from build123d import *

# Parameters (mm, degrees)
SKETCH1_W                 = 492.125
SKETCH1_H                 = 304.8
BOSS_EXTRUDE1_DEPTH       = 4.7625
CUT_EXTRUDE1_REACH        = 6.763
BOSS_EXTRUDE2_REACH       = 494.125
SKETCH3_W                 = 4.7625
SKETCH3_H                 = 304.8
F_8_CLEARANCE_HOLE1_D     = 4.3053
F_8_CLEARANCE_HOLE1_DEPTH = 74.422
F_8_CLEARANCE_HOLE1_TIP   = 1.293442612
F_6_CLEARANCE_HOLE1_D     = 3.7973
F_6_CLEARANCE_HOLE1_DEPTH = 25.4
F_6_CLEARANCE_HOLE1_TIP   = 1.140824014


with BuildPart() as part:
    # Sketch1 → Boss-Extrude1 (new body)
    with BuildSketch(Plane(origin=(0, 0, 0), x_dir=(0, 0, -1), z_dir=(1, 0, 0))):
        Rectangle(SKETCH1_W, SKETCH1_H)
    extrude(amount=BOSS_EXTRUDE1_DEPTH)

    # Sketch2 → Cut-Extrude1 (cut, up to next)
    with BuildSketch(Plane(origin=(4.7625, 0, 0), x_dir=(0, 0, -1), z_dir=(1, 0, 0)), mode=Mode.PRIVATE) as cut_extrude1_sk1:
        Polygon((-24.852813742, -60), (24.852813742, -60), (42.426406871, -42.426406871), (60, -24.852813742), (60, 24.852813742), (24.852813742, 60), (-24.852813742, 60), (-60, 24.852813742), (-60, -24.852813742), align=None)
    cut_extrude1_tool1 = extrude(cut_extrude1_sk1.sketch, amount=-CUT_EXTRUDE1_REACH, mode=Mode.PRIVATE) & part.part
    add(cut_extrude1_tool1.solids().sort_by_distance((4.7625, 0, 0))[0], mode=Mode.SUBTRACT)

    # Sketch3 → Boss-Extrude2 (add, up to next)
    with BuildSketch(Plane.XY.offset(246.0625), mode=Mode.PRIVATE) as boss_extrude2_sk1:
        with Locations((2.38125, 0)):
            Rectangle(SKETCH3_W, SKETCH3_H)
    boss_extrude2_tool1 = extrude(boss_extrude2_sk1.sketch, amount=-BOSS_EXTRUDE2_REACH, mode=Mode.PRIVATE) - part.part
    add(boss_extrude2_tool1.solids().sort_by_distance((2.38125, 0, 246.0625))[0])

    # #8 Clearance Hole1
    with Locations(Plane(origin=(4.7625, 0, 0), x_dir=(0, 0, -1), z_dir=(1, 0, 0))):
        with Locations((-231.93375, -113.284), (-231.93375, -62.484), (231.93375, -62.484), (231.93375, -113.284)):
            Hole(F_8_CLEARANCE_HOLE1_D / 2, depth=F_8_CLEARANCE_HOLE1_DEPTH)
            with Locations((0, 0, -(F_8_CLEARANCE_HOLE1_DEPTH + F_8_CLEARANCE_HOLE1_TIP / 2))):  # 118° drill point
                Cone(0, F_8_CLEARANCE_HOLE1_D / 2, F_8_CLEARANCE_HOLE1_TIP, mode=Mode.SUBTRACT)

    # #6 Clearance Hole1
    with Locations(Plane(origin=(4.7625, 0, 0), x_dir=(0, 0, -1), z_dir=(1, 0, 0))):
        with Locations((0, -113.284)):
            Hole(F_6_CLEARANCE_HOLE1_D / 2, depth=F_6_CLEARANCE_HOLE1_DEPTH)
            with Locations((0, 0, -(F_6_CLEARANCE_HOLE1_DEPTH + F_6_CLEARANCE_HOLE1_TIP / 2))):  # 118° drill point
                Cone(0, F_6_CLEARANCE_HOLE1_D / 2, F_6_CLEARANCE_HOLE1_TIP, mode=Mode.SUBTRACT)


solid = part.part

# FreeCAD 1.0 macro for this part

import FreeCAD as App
import Part
import Sketcher
from FreeCAD import Vector
Q = App.Units.Quantity


def add_polygon(sketch, points):
    """Adds a closed chain of lines whose ends are joined by coincident constraints."""
    first, n = sketch.GeometryCount, len(points)
    for a, b in zip(points, points[1:] + points[:1]):
        sketch.addGeometry(Part.LineSegment(App.Vector(*a, 0), App.Vector(*b, 0)), False)
    for i in range(n):
        sketch.addConstraint(Sketcher.Constraint("Coincident", first + i, 2, first + (i + 1) % n, 1))

doc = App.newDocument("Part")
body = doc.addObject("PartDesign::Body", "Body")

# Sketch on YZ plane
sketch1 = body.newObject("Sketcher::SketchObject", "Sketch")
sketch1.AttachmentSupport = (doc.getObject("YZ_Plane"), [""])
sketch1.MapMode = "FlatFace"
add_polygon(sketch1, [(152, 246), (-152, 246), (-152, -246), (152, -246)])  # lines 0-3
sketch1.addConstraint(Sketcher.Constraint("Horizontal", 0))
sketch1.addConstraint(Sketcher.Constraint("Vertical", 1))
sketch1.addConstraint(Sketcher.Constraint("Horizontal", 2))
sketch1.addConstraint(Sketcher.Constraint("Vertical", 3))
sketch1.addConstraint(Sketcher.Constraint("Symmetric", 0, 2, 2, 2, -1, 1))
sketch1.addConstraint(Sketcher.Constraint("DistanceX", 0, 2, 0, 1, Q("12 in")))
sketch1.addConstraint(Sketcher.Constraint("DistanceY", 1, 2, 1, 1, Q("19.375 in")))
pad1 = body.newObject("PartDesign::Pad", "Pad")
pad1.Profile = sketch1
pad1.Length = Q("0.1875 in")

# Sketch on YZ plane
sketch2 = body.newObject("Sketcher::SketchObject", "Sketch001")
sketch2.AttachmentSupport = (doc.getObject("YZ_Plane"), [""])
sketch2.MapMode = "FlatFace"
sketch2.AttachmentOffset = App.Placement(Vector(0, 0, 0.1875 * 25.4), App.Rotation())
add_polygon(sketch2, [(-60, 25), (-60, -25), (-25, -60), (25, -60), (60, -25), (60, 25), (25, 60), (-25, 60)])  # lines 0-7
sketch2.addConstraint(Sketcher.Constraint("Vertical", 0))
sketch2.addConstraint(Sketcher.Constraint("Horizontal", 2))
sketch2.addConstraint(Sketcher.Constraint("Vertical", 4))
sketch2.addConstraint(Sketcher.Constraint("Horizontal", 6))
sketch2.addConstraint(Sketcher.Constraint("Symmetric", 0, 2, 4, 2, -1, 1))
sketch2.addConstraint(Sketcher.Constraint("Symmetric", 1, 2, 5, 2, -1, 1))
sketch2.addConstraint(Sketcher.Constraint("Perpendicular", 1, 3))
sketch2.addConstraint(Sketcher.Constraint("Perpendicular", 5, 7))
sketch2.addConstraint(Sketcher.Constraint("Horizontal", 0, 2, 3, 2))
sketch2.addConstraint(Sketcher.Constraint("Horizontal", 4, 2, 7, 2))
sketch2.addConstraint(Sketcher.Constraint("Vertical", 2, 2, 5, 2))
sketch2.addConstraint(Sketcher.Constraint("Equal", 6, 0))
sketch2.addConstraint(Sketcher.Constraint("DistanceX", 0, 2, -1, 1, Q("60 mm")))
sketch2.addConstraint(Sketcher.Constraint("DistanceX", 2, 1, 2, 2, Q("49.705627 mm")))
pocket1 = body.newObject("PartDesign::Pocket", "Pocket")
pocket1.Profile = sketch2
pocket1.Type = "UpToFirst"

# Sketch on XY plane
sketch3 = body.newObject("Sketcher::SketchObject", "Sketch002")
sketch3.AttachmentSupport = (doc.getObject("XY_Plane"), [""])
sketch3.MapMode = "FlatFace"
sketch3.AttachmentOffset = App.Placement(Vector(0, 0, 9.6875 * 25.4), App.Rotation())
add_polygon(sketch3, [(0, 152.4), (0, -152.4), (4.8, -152.4), (4.8, 152.4)])  # lines 0-3
sketch3.addConstraint(Sketcher.Constraint("Vertical", 0))
sketch3.addConstraint(Sketcher.Constraint("Horizontal", 1))
sketch3.addConstraint(Sketcher.Constraint("Vertical", 2))
sketch3.addConstraint(Sketcher.Constraint("Horizontal", 3))
sketch3.addConstraint(Sketcher.Constraint("Symmetric", 0, 2, 3, 2, -1, 1))
sketch3.addConstraint(Sketcher.Constraint("DistanceY", 0, 2, 0, 1, Q("12 in")))
sketch3.addConstraint(Sketcher.Constraint("DistanceX", 1, 1, 1, 2, Q("0.1875 in")))
pad2 = body.newObject("PartDesign::Pad", "Pad001")
pad2.Profile = sketch3
pad2.Length = 306.0625
pad2.Reversed = True

# Sketch on YZ plane
sketch4 = body.newObject("Sketcher::SketchObject", "Sketch003")
sketch4.AttachmentSupport = (doc.getObject("YZ_Plane"), [""])
sketch4.MapMode = "FlatFace"
sketch4.AttachmentOffset = App.Placement(Vector(0, 0, 0.1875 * 25.4), App.Rotation())
sketch4.addGeometry(Part.Circle(Vector(-113.3, 231.9, 0), Vector(0, 0, 1), 2.2), False)
sketch4.addGeometry(Part.Circle(Vector(-62.5, 231.9, 0), Vector(0, 0, 1), 2.2), False)
sketch4.addGeometry(Part.Circle(Vector(-62.5, -231.9, 0), Vector(0, 0, 1), 2.2), False)
sketch4.addGeometry(Part.Circle(Vector(-113.3, -231.9, 0), Vector(0, 0, 1), 2.2), False)
sketch4.addConstraint(Sketcher.Constraint("Equal", 0, 1))
sketch4.addConstraint(Sketcher.Constraint("Equal", 1, 2))
sketch4.addConstraint(Sketcher.Constraint("Equal", 2, 3))
sketch4.addConstraint(Sketcher.Constraint("Symmetric", 1, 3, 2, 3, -1))
sketch4.addConstraint(Sketcher.Constraint("Symmetric", 0, 3, 3, 3, -1))
sketch4.addConstraint(Sketcher.Constraint("Horizontal", 0, 3, 1, 3))
sketch4.addConstraint(Sketcher.Constraint("DistanceX", 0, 3, 1, 3, Q("2 in")))
sketch4.addConstraint(Sketcher.Constraint("Diameter", 0, Q("0.1695 in")))
sketch4.addConstraint(Sketcher.Constraint("DistanceX", 0, 3, -1, 1, Q("4.46 in")))
sketch4.addConstraint(Sketcher.Constraint("DistanceY", 2, 3, 1, 3, Q("18.2625 in")))
doc.recompute()
hole = body.newObject("PartDesign::Hole", "Hole")
hole.Profile = sketch4
hole.ThreadType = "None"
hole.Diameter = Q("0.1695 in")
hole.DepthType = "Dimension"
hole.Depth = Q("2.93 in")
hole.DrillPoint = "Angled"
hole.DrillPointAngle = 118

# Sketch on YZ plane
sketch5 = body.newObject("Sketcher::SketchObject", "Sketch004")
sketch5.AttachmentSupport = (doc.getObject("YZ_Plane"), [""])
sketch5.MapMode = "FlatFace"
sketch5.AttachmentOffset = App.Placement(Vector(0, 0, 0.1875 * 25.4), App.Rotation())
sketch5.addGeometry(Part.Circle(Vector(-113.3, 0, 0), Vector(0, 0, 1), 1.9), False)
sketch5.addConstraint(Sketcher.Constraint("PointOnObject", 0, 3, -1))
sketch5.addConstraint(Sketcher.Constraint("Diameter", 0, Q("0.1495 in")))
sketch5.addConstraint(Sketcher.Constraint("DistanceX", 0, 3, -1, 1, Q("4.46 in")))
doc.recompute()
hole2 = body.newObject("PartDesign::Hole", "Hole001")
hole2.Profile = sketch5
hole2.ThreadType = "None"
hole2.Diameter = Q("0.1495 in")
hole2.DepthType = "Dimension"
hole2.Depth = Q("1 in")
hole2.DrillPoint = "Angled"
hole2.DrillPointAngle = 118

doc.recompute()
